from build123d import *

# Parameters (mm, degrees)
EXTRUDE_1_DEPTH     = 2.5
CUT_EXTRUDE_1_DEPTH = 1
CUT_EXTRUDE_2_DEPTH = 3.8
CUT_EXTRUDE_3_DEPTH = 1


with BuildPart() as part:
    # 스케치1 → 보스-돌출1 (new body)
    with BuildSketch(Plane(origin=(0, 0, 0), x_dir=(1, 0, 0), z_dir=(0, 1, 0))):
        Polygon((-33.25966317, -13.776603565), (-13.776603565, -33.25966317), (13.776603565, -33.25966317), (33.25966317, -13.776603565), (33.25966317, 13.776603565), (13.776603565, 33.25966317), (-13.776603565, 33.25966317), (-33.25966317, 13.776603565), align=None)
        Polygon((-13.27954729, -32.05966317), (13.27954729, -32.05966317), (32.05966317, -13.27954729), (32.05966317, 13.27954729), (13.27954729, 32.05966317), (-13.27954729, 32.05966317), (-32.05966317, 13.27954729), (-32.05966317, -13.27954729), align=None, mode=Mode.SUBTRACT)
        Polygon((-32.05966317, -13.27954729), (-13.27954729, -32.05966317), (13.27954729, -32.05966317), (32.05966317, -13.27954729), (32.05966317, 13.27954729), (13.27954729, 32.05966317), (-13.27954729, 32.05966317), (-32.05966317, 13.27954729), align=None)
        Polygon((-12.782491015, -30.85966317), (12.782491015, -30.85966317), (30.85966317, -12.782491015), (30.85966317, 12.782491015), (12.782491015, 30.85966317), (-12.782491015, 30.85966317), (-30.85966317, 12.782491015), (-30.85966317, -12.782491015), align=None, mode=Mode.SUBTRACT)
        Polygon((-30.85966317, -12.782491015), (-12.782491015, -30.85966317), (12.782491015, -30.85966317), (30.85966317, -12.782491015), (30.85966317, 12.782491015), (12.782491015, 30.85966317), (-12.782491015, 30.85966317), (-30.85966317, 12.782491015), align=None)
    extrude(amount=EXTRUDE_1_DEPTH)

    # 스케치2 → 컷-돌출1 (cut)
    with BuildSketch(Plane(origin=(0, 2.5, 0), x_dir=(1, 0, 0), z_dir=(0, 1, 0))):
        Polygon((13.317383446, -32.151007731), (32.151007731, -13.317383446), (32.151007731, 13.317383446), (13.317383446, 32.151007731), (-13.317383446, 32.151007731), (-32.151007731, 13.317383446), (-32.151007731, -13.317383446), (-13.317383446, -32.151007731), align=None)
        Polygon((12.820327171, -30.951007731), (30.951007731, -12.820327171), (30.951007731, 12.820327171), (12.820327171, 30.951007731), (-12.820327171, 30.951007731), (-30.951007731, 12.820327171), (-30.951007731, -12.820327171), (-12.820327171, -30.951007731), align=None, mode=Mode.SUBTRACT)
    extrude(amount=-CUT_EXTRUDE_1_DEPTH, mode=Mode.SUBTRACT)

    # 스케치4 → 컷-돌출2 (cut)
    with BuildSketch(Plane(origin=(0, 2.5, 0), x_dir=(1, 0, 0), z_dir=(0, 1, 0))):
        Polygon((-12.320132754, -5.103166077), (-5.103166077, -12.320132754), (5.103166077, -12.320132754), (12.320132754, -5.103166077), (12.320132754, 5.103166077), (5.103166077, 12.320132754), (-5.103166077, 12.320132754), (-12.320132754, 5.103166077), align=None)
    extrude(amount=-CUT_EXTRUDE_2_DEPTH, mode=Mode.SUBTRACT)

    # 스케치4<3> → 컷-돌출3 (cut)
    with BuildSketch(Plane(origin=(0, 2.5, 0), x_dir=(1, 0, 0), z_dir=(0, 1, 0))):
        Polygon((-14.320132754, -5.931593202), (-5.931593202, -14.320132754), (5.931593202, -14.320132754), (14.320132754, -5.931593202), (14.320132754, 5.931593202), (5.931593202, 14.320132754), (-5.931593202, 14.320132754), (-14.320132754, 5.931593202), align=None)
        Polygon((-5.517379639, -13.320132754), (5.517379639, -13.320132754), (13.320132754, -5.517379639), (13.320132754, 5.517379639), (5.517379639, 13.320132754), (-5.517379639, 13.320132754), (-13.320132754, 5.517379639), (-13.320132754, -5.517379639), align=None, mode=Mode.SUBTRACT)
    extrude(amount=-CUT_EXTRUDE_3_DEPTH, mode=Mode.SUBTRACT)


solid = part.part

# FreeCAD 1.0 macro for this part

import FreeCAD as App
import Part
import Sketcher

doc = App.newDocument("Part")
body = doc.addObject("PartDesign::Body", "Body")

# Sketch on XZ plane
sketch1 = body.newObject("Sketcher::SketchObject", "Sketch")
sketch1.AttachmentSupport = (doc.getObject("XZ_Plane"), [""])
sketch1.MapMode = "FlatFace"
sketch1.addGeometry([
    Part.LineSegment(App.Vector(-33.259663, 13.776604, 0), App.Vector(-13.776604, 33.259663, 0)),  # 0
    Part.LineSegment(App.Vector(-13.776604, 33.259663, 0), App.Vector(13.776604, 33.259663, 0)),  # 1
    Part.LineSegment(App.Vector(13.776604, 33.259663, 0), App.Vector(33.259663, 13.776604, 0)),  # 2
    Part.LineSegment(App.Vector(33.259663, 13.776604, 0), App.Vector(33.259663, -13.776604, 0)),  # 3
    Part.LineSegment(App.Vector(33.259663, -13.776604, 0), App.Vector(13.776604, -33.259663, 0)),  # 4
    Part.LineSegment(App.Vector(13.776604, -33.259663, 0), App.Vector(-13.776604, -33.259663, 0)),  # 5
    Part.LineSegment(App.Vector(-13.776604, -33.259663, 0), App.Vector(-33.259663, -13.776604, 0)),  # 6
    Part.LineSegment(App.Vector(-33.259663, -13.776604, 0), App.Vector(-33.259663, 13.776604, 0)),  # 7
], False)
sketch1.addConstraint([
    Sketcher.Constraint("Coincident", 0, 2, 1, 1),
    Sketcher.Constraint("Coincident", 1, 2, 2, 1),
    Sketcher.Constraint("Coincident", 2, 2, 3, 1),
    Sketcher.Constraint("Coincident", 3, 2, 4, 1),
    Sketcher.Constraint("Coincident", 4, 2, 5, 1),
    Sketcher.Constraint("Coincident", 5, 2, 6, 1),
    Sketcher.Constraint("Coincident", 6, 2, 7, 1),
    Sketcher.Constraint("Coincident", 7, 2, 0, 1),
    Sketcher.Constraint("Horizontal", 1),
    Sketcher.Constraint("Vertical", 3),
    Sketcher.Constraint("Horizontal", 5),
    Sketcher.Constraint("Vertical", 7),
    Sketcher.Constraint("Symmetric", 0, 2, 4, 2, -1, 1),
    Sketcher.Constraint("Symmetric", 2, 2, 6, 2, -1, 1),
    Sketcher.Constraint("Perpendicular", 0, 2),
    Sketcher.Constraint("Perpendicular", 2, 4),
    Sketcher.Constraint("Perpendicular", 4, 6),
    Sketcher.Constraint("Horizontal", 3, 2, 6, 2),
    Sketcher.Constraint("Vertical", 1, 2, 4, 2),
    Sketcher.Constraint("Equal", 5, 3),
    Sketcher.Constraint("DistanceX", 1, 1, 1, 2, 27.553207),
    Sketcher.Constraint("DistanceX", 1, 2, 2, 2, 19.48306),
])
pad1 = body.newObject("PartDesign::Pad", "Pad")
pad1.Profile = sketch1
pad1.Length = 2.5
pad1.Reversed = True

# Sketch on XZ plane
sketch2 = body.newObject("Sketcher::SketchObject", "Sketch001")
sketch2.AttachmentSupport = (doc.getObject("XZ_Plane"), [""])
sketch2.MapMode = "FlatFace"
sketch2.AttachmentOffset = App.Placement(App.Vector(0, 0, -2.5), App.Rotation())
sketch2.addGeometry([
    Part.LineSegment(App.Vector(13.317383, 32.151008, 0), App.Vector(32.151008, 13.317383, 0)),  # 0
    Part.LineSegment(App.Vector(32.151008, 13.317383, 0), App.Vector(32.151008, -13.317383, 0)),  # 1
    Part.LineSegment(App.Vector(32.151008, -13.317383, 0), App.Vector(13.317383, -32.151008, 0)),  # 2
    Part.LineSegment(App.Vector(13.317383, -32.151008, 0), App.Vector(-13.317383, -32.151008, 0)),  # 3
    Part.LineSegment(App.Vector(-13.317383, -32.151008, 0), App.Vector(-32.151008, -13.317383, 0)),  # 4
    Part.LineSegment(App.Vector(-32.151008, -13.317383, 0), App.Vector(-32.151008, 13.317383, 0)),  # 5
    Part.LineSegment(App.Vector(-32.151008, 13.317383, 0), App.Vector(-13.317383, 32.151008, 0)),  # 6
    Part.LineSegment(App.Vector(-13.317383, 32.151008, 0), App.Vector(13.317383, 32.151008, 0)),  # 7
    Part.LineSegment(App.Vector(30.951008, 12.820327, 0), App.Vector(12.820327, 30.951008, 0)),  # 8
    Part.LineSegment(App.Vector(12.820327, 30.951008, 0), App.Vector(-12.820327, 30.951008, 0)),  # 9
    Part.LineSegment(App.Vector(-12.820327, 30.951008, 0), App.Vector(-30.951008, 12.820327, 0)),  # 10
    Part.LineSegment(App.Vector(-30.951008, 12.820327, 0), App.Vector(-30.951008, -12.820327, 0)),  # 11
    Part.LineSegment(App.Vector(-30.951008, -12.820327, 0), App.Vector(-12.820327, -30.951008, 0)),  # 12
    Part.LineSegment(App.Vector(-12.820327, -30.951008, 0), App.Vector(12.820327, -30.951008, 0)),  # 13
    Part.LineSegment(App.Vector(12.820327, -30.951008, 0), App.Vector(30.951008, -12.820327, 0)),  # 14
    Part.LineSegment(App.Vector(30.951008, -12.820327, 0), App.Vector(30.951008, 12.820327, 0)),  # 15
], False)
sketch2.addConstraint([
    Sketcher.Constraint("Coincident", 0, 2, 1, 1),
    Sketcher.Constraint("Coincident", 1, 2, 2, 1),
    Sketcher.Constraint("Coincident", 2, 2, 3, 1),
    Sketcher.Constraint("Coincident", 3, 2, 4, 1),
    Sketcher.Constraint("Coincident", 4, 2, 5, 1),
    Sketcher.Constraint("Coincident", 5, 2, 6, 1),
    Sketcher.Constraint("Coincident", 6, 2, 7, 1),
    Sketcher.Constraint("Coincident", 7, 2, 0, 1),
    Sketcher.Constraint("Coincident", 8, 2, 9, 1),
    Sketcher.Constraint("Coincident", 9, 2, 10, 1),
    Sketcher.Constraint("Coincident", 10, 2, 11, 1),
    Sketcher.Constraint("Coincident", 11, 2, 12, 1),
    Sketcher.Constraint("Coincident", 12, 2, 13, 1),
    Sketcher.Constraint("Coincident", 13, 2, 14, 1),
    Sketcher.Constraint("Coincident", 14, 2, 15, 1),
    Sketcher.Constraint("Coincident", 15, 2, 8, 1),
    Sketcher.Constraint("Vertical", 1),
    Sketcher.Constraint("Horizontal", 3),
    Sketcher.Constraint("Vertical", 5),
    Sketcher.Constraint("Horizontal", 7),
    Sketcher.Constraint("Horizontal", 9),
    Sketcher.Constraint("Vertical", 11),
    Sketcher.Constraint("Horizontal", 13),
    Sketcher.Constraint("Vertical", 15),
    Sketcher.Constraint("Symmetric", 0, 2, 4, 2, -1, 1),
    Sketcher.Constraint("Symmetric", 2, 2, 6, 2, -1, 1),
    Sketcher.Constraint("Symmetric", 8, 2, 12, 2, -1, 1),
    Sketcher.Constraint("Symmetric", 10, 2, 14, 2, -1, 1),
    Sketcher.Constraint("Perpendicular", 0, 2),
    Sketcher.Constraint("Perpendicular", 2, 4),
    Sketcher.Constraint("Perpendicular", 4, 6),
    Sketcher.Constraint("Perpendicular", 6, 8),
    Sketcher.Constraint("Perpendicular", 8, 10),
    Sketcher.Constraint("Perpendicular", 10, 12),
    Sketcher.Constraint("Perpendicular", 12, 14),
    Sketcher.Constraint("Horizontal", 1, 2, 4, 2),
    Sketcher.Constraint("Horizontal", 11, 2, 14, 2),
    Sketcher.Constraint("Vertical", 3, 2, 6, 2),
    Sketcher.Constraint("Equal", 7, 1),
    Sketcher.Constraint("Equal", 13, 11),
    Sketcher.Constraint("DistanceY", 8, 2, 7, 2, 1.2),
    Sketcher.Constraint("DistanceX", 3, 2, 3, 1, 26.634767),
    Sketcher.Constraint("DistanceX", 9, 2, 9, 1, 25.640654),
    Sketcher.Constraint("DistanceY", 2, 2, 0, 2, 45.468391),
])
pocket1 = body.newObject("PartDesign::Pocket", "Pocket")
pocket1.Profile = sketch2
pocket1.Length = 1
pocket1.Reversed = True

# Sketch on XZ plane
sketch3 = body.newObject("Sketcher::SketchObject", "Sketch002")
sketch3.AttachmentSupport = (doc.getObject("XZ_Plane"), [""])
sketch3.MapMode = "FlatFace"
sketch3.AttachmentOffset = App.Placement(App.Vector(0, 0, -2.5), App.Rotation())
sketch3.addGeometry([
    Part.LineSegment(App.Vector(-12.320133, 5.103166, 0), App.Vector(-5.103166, 12.320133, 0)),  # 0
    Part.LineSegment(App.Vector(-5.103166, 12.320133, 0), App.Vector(5.103166, 12.320133, 0)),  # 1
    Part.LineSegment(App.Vector(5.103166, 12.320133, 0), App.Vector(12.320133, 5.103166, 0)),  # 2
    Part.LineSegment(App.Vector(12.320133, 5.103166, 0), App.Vector(12.320133, -5.103166, 0)),  # 3
    Part.LineSegment(App.Vector(12.320133, -5.103166, 0), App.Vector(5.103166, -12.320133, 0)),  # 4
    Part.LineSegment(App.Vector(5.103166, -12.320133, 0), App.Vector(-5.103166, -12.320133, 0)),  # 5
    Part.LineSegment(App.Vector(-5.103166, -12.320133, 0), App.Vector(-12.320133, -5.103166, 0)),  # 6
    Part.LineSegment(App.Vector(-12.320133, -5.103166, 0), App.Vector(-12.320133, 5.103166, 0)),  # 7
], False)
sketch3.addConstraint([
    Sketcher.Constraint("Coincident", 0, 2, 1, 1),
    Sketcher.Constraint("Coincident", 1, 2, 2, 1),
    Sketcher.Constraint("Coincident", 2, 2, 3, 1),
    Sketcher.Constraint("Coincident", 3, 2, 4, 1),
    Sketcher.Constraint("Coincident", 4, 2, 5, 1),
    Sketcher.Constraint("Coincident", 5, 2, 6, 1),
    Sketcher.Constraint("Coincident", 6, 2, 7, 1),
    Sketcher.Constraint("Coincident", 7, 2, 0, 1),
    Sketcher.Constraint("Horizontal", 1),
    Sketcher.Constraint("Vertical", 3),
    Sketcher.Constraint("Horizontal", 5),
    Sketcher.Constraint("Vertical", 7),
    Sketcher.Constraint("Symmetric", 0, 2, 4, 2, -1, 1),
    Sketcher.Constraint("Symmetric", 2, 2, 6, 2, -1, 1),
    Sketcher.Constraint("Perpendicular", 0, 2),
    Sketcher.Constraint("Perpendicular", 2, 4),
    Sketcher.Constraint("Perpendicular", 4, 6),
    Sketcher.Constraint("Horizontal", 3, 2, 6, 2),
    Sketcher.Constraint("Vertical", 1, 2, 4, 2),
    Sketcher.Constraint("Equal", 5, 3),
    Sketcher.Constraint("DistanceX", 0, 2, 2, 2, 17.423299),
    Sketcher.Constraint("DistanceX", 1, 1, 1, 2, 10.206332),
])
pocket2 = body.newObject("PartDesign::Pocket", "Pocket001")
pocket2.Profile = sketch3
pocket2.Length = 3.8
pocket2.Reversed = True

# Sketch on XZ plane
sketch4 = body.newObject("Sketcher::SketchObject", "Sketch003")
sketch4.AttachmentSupport = (doc.getObject("XZ_Plane"), [""])
sketch4.MapMode = "FlatFace"
sketch4.AttachmentOffset = App.Placement(App.Vector(0, 0, -2.5), App.Rotation())
sketch4.addGeometry([
    Part.LineSegment(App.Vector(-14.320133, 5.931593, 0), App.Vector(-5.931593, 14.320133, 0)),  # 0
    Part.LineSegment(App.Vector(-5.931593, 14.320133, 0), App.Vector(5.931593, 14.320133, 0)),  # 1
    Part.LineSegment(App.Vector(5.931593, 14.320133, 0), App.Vector(14.320133, 5.931593, 0)),  # 2
    Part.LineSegment(App.Vector(14.320133, 5.931593, 0), App.Vector(14.320133, -5.931593, 0)),  # 3
    Part.LineSegment(App.Vector(14.320133, -5.931593, 0), App.Vector(5.931593, -14.320133, 0)),  # 4
    Part.LineSegment(App.Vector(5.931593, -14.320133, 0), App.Vector(-5.931593, -14.320133, 0)),  # 5
    Part.LineSegment(App.Vector(-5.931593, -14.320133, 0), App.Vector(-14.320133, -5.931593, 0)),  # 6
    Part.LineSegment(App.Vector(-14.320133, -5.931593, 0), App.Vector(-14.320133, 5.931593, 0)),  # 7
    Part.LineSegment(App.Vector(5.51738, 13.320133, 0), App.Vector(-5.51738, 13.320133, 0)),  # 8
    Part.LineSegment(App.Vector(-5.51738, 13.320133, 0), App.Vector(-13.320133, 5.51738, 0)),  # 9
    Part.LineSegment(App.Vector(-13.320133, 5.51738, 0), App.Vector(-13.320133, -5.51738, 0)),  # 10
    Part.LineSegment(App.Vector(-13.320133, -5.51738, 0), App.Vector(-5.51738, -13.320133, 0)),  # 11
    Part.LineSegment(App.Vector(-5.51738, -13.320133, 0), App.Vector(5.51738, -13.320133, 0)),  # 12
    Part.LineSegment(App.Vector(5.51738, -13.320133, 0), App.Vector(13.320133, -5.51738, 0)),  # 13
    Part.LineSegment(App.Vector(13.320133, -5.51738, 0), App.Vector(13.320133, 5.51738, 0)),  # 14
    Part.LineSegment(App.Vector(13.320133, 5.51738, 0), App.Vector(5.51738, 13.320133, 0)),  # 15
], False)
sketch4.addConstraint([
    Sketcher.Constraint("Coincident", 0, 2, 1, 1),
    Sketcher.Constraint("Coincident", 1, 2, 2, 1),
    Sketcher.Constraint("Coincident", 2, 2, 3, 1),
    Sketcher.Constraint("Coincident", 3, 2, 4, 1),
    Sketcher.Constraint("Coincident", 4, 2, 5, 1),
    Sketcher.Constraint("Coincident", 5, 2, 6, 1),
    Sketcher.Constraint("Coincident", 6, 2, 7, 1),
    Sketcher.Constraint("Coincident", 7, 2, 0, 1),
    Sketcher.Constraint("Coincident", 8, 2, 9, 1),
    Sketcher.Constraint("Coincident", 9, 2, 10, 1),
    Sketcher.Constraint("Coincident", 10, 2, 11, 1),
    Sketcher.Constraint("Coincident", 11, 2, 12, 1),
    Sketcher.Constraint("Coincident", 12, 2, 13, 1),
    Sketcher.Constraint("Coincident", 13, 2, 14, 1),
    Sketcher.Constraint("Coincident", 14, 2, 15, 1),
    Sketcher.Constraint("Coincident", 15, 2, 8, 1),
    Sketcher.Constraint("Horizontal", 1),
    Sketcher.Constraint("Vertical", 3),
    Sketcher.Constraint("Horizontal", 5),
    Sketcher.Constraint("Vertical", 7),
    Sketcher.Constraint("Horizontal", 8),
    Sketcher.Constraint("Vertical", 10),
    Sketcher.Constraint("Horizontal", 12),
    Sketcher.Constraint("Vertical", 14),
    Sketcher.Constraint("Symmetric", 0, 2, 4, 2, -1, 1),
    Sketcher.Constraint("Symmetric", 2, 2, 6, 2, -1, 1),
    Sketcher.Constraint("Symmetric", 8, 2, 12, 2, -1, 1),
    Sketcher.Constraint("Symmetric", 9, 2, 13, 2, -1, 1),
    Sketcher.Constraint("Perpendicular", 0, 2),
    Sketcher.Constraint("Perpendicular", 2, 4),
    Sketcher.Constraint("Perpendicular", 4, 6),
    Sketcher.Constraint("Perpendicular", 6, 9),
    Sketcher.Constraint("Perpendicular", 9, 11),
    Sketcher.Constraint("Perpendicular", 13, 15),
    Sketcher.Constraint("Horizontal", 3, 2, 6, 2),
    Sketcher.Constraint("Horizontal", 10, 2, 13, 2),
    Sketcher.Constraint("Horizontal", 9, 2, 14, 2),
    Sketcher.Constraint("Vertical", 1, 2, 4, 2),
    Sketcher.Constraint("Equal", 5, 3),
    Sketcher.Constraint("Equal", 12, 10),
    Sketcher.Constraint("DistanceY", 8, 2, 0, 2, 1.0),
    Sketcher.Constraint("DistanceX", 8, 2, 8, 1, 11.034759),
    Sketcher.Constraint("Distance", 9, 11.034759),
    Sketcher.Constraint("DistanceX", 1, 1, 1, 2, 11.863186),
])
pocket3 = body.newObject("PartDesign::Pocket", "Pocket002")
pocket3.Profile = sketch4
pocket3.Length = 1
pocket3.Reversed = True

doc.recompute()
